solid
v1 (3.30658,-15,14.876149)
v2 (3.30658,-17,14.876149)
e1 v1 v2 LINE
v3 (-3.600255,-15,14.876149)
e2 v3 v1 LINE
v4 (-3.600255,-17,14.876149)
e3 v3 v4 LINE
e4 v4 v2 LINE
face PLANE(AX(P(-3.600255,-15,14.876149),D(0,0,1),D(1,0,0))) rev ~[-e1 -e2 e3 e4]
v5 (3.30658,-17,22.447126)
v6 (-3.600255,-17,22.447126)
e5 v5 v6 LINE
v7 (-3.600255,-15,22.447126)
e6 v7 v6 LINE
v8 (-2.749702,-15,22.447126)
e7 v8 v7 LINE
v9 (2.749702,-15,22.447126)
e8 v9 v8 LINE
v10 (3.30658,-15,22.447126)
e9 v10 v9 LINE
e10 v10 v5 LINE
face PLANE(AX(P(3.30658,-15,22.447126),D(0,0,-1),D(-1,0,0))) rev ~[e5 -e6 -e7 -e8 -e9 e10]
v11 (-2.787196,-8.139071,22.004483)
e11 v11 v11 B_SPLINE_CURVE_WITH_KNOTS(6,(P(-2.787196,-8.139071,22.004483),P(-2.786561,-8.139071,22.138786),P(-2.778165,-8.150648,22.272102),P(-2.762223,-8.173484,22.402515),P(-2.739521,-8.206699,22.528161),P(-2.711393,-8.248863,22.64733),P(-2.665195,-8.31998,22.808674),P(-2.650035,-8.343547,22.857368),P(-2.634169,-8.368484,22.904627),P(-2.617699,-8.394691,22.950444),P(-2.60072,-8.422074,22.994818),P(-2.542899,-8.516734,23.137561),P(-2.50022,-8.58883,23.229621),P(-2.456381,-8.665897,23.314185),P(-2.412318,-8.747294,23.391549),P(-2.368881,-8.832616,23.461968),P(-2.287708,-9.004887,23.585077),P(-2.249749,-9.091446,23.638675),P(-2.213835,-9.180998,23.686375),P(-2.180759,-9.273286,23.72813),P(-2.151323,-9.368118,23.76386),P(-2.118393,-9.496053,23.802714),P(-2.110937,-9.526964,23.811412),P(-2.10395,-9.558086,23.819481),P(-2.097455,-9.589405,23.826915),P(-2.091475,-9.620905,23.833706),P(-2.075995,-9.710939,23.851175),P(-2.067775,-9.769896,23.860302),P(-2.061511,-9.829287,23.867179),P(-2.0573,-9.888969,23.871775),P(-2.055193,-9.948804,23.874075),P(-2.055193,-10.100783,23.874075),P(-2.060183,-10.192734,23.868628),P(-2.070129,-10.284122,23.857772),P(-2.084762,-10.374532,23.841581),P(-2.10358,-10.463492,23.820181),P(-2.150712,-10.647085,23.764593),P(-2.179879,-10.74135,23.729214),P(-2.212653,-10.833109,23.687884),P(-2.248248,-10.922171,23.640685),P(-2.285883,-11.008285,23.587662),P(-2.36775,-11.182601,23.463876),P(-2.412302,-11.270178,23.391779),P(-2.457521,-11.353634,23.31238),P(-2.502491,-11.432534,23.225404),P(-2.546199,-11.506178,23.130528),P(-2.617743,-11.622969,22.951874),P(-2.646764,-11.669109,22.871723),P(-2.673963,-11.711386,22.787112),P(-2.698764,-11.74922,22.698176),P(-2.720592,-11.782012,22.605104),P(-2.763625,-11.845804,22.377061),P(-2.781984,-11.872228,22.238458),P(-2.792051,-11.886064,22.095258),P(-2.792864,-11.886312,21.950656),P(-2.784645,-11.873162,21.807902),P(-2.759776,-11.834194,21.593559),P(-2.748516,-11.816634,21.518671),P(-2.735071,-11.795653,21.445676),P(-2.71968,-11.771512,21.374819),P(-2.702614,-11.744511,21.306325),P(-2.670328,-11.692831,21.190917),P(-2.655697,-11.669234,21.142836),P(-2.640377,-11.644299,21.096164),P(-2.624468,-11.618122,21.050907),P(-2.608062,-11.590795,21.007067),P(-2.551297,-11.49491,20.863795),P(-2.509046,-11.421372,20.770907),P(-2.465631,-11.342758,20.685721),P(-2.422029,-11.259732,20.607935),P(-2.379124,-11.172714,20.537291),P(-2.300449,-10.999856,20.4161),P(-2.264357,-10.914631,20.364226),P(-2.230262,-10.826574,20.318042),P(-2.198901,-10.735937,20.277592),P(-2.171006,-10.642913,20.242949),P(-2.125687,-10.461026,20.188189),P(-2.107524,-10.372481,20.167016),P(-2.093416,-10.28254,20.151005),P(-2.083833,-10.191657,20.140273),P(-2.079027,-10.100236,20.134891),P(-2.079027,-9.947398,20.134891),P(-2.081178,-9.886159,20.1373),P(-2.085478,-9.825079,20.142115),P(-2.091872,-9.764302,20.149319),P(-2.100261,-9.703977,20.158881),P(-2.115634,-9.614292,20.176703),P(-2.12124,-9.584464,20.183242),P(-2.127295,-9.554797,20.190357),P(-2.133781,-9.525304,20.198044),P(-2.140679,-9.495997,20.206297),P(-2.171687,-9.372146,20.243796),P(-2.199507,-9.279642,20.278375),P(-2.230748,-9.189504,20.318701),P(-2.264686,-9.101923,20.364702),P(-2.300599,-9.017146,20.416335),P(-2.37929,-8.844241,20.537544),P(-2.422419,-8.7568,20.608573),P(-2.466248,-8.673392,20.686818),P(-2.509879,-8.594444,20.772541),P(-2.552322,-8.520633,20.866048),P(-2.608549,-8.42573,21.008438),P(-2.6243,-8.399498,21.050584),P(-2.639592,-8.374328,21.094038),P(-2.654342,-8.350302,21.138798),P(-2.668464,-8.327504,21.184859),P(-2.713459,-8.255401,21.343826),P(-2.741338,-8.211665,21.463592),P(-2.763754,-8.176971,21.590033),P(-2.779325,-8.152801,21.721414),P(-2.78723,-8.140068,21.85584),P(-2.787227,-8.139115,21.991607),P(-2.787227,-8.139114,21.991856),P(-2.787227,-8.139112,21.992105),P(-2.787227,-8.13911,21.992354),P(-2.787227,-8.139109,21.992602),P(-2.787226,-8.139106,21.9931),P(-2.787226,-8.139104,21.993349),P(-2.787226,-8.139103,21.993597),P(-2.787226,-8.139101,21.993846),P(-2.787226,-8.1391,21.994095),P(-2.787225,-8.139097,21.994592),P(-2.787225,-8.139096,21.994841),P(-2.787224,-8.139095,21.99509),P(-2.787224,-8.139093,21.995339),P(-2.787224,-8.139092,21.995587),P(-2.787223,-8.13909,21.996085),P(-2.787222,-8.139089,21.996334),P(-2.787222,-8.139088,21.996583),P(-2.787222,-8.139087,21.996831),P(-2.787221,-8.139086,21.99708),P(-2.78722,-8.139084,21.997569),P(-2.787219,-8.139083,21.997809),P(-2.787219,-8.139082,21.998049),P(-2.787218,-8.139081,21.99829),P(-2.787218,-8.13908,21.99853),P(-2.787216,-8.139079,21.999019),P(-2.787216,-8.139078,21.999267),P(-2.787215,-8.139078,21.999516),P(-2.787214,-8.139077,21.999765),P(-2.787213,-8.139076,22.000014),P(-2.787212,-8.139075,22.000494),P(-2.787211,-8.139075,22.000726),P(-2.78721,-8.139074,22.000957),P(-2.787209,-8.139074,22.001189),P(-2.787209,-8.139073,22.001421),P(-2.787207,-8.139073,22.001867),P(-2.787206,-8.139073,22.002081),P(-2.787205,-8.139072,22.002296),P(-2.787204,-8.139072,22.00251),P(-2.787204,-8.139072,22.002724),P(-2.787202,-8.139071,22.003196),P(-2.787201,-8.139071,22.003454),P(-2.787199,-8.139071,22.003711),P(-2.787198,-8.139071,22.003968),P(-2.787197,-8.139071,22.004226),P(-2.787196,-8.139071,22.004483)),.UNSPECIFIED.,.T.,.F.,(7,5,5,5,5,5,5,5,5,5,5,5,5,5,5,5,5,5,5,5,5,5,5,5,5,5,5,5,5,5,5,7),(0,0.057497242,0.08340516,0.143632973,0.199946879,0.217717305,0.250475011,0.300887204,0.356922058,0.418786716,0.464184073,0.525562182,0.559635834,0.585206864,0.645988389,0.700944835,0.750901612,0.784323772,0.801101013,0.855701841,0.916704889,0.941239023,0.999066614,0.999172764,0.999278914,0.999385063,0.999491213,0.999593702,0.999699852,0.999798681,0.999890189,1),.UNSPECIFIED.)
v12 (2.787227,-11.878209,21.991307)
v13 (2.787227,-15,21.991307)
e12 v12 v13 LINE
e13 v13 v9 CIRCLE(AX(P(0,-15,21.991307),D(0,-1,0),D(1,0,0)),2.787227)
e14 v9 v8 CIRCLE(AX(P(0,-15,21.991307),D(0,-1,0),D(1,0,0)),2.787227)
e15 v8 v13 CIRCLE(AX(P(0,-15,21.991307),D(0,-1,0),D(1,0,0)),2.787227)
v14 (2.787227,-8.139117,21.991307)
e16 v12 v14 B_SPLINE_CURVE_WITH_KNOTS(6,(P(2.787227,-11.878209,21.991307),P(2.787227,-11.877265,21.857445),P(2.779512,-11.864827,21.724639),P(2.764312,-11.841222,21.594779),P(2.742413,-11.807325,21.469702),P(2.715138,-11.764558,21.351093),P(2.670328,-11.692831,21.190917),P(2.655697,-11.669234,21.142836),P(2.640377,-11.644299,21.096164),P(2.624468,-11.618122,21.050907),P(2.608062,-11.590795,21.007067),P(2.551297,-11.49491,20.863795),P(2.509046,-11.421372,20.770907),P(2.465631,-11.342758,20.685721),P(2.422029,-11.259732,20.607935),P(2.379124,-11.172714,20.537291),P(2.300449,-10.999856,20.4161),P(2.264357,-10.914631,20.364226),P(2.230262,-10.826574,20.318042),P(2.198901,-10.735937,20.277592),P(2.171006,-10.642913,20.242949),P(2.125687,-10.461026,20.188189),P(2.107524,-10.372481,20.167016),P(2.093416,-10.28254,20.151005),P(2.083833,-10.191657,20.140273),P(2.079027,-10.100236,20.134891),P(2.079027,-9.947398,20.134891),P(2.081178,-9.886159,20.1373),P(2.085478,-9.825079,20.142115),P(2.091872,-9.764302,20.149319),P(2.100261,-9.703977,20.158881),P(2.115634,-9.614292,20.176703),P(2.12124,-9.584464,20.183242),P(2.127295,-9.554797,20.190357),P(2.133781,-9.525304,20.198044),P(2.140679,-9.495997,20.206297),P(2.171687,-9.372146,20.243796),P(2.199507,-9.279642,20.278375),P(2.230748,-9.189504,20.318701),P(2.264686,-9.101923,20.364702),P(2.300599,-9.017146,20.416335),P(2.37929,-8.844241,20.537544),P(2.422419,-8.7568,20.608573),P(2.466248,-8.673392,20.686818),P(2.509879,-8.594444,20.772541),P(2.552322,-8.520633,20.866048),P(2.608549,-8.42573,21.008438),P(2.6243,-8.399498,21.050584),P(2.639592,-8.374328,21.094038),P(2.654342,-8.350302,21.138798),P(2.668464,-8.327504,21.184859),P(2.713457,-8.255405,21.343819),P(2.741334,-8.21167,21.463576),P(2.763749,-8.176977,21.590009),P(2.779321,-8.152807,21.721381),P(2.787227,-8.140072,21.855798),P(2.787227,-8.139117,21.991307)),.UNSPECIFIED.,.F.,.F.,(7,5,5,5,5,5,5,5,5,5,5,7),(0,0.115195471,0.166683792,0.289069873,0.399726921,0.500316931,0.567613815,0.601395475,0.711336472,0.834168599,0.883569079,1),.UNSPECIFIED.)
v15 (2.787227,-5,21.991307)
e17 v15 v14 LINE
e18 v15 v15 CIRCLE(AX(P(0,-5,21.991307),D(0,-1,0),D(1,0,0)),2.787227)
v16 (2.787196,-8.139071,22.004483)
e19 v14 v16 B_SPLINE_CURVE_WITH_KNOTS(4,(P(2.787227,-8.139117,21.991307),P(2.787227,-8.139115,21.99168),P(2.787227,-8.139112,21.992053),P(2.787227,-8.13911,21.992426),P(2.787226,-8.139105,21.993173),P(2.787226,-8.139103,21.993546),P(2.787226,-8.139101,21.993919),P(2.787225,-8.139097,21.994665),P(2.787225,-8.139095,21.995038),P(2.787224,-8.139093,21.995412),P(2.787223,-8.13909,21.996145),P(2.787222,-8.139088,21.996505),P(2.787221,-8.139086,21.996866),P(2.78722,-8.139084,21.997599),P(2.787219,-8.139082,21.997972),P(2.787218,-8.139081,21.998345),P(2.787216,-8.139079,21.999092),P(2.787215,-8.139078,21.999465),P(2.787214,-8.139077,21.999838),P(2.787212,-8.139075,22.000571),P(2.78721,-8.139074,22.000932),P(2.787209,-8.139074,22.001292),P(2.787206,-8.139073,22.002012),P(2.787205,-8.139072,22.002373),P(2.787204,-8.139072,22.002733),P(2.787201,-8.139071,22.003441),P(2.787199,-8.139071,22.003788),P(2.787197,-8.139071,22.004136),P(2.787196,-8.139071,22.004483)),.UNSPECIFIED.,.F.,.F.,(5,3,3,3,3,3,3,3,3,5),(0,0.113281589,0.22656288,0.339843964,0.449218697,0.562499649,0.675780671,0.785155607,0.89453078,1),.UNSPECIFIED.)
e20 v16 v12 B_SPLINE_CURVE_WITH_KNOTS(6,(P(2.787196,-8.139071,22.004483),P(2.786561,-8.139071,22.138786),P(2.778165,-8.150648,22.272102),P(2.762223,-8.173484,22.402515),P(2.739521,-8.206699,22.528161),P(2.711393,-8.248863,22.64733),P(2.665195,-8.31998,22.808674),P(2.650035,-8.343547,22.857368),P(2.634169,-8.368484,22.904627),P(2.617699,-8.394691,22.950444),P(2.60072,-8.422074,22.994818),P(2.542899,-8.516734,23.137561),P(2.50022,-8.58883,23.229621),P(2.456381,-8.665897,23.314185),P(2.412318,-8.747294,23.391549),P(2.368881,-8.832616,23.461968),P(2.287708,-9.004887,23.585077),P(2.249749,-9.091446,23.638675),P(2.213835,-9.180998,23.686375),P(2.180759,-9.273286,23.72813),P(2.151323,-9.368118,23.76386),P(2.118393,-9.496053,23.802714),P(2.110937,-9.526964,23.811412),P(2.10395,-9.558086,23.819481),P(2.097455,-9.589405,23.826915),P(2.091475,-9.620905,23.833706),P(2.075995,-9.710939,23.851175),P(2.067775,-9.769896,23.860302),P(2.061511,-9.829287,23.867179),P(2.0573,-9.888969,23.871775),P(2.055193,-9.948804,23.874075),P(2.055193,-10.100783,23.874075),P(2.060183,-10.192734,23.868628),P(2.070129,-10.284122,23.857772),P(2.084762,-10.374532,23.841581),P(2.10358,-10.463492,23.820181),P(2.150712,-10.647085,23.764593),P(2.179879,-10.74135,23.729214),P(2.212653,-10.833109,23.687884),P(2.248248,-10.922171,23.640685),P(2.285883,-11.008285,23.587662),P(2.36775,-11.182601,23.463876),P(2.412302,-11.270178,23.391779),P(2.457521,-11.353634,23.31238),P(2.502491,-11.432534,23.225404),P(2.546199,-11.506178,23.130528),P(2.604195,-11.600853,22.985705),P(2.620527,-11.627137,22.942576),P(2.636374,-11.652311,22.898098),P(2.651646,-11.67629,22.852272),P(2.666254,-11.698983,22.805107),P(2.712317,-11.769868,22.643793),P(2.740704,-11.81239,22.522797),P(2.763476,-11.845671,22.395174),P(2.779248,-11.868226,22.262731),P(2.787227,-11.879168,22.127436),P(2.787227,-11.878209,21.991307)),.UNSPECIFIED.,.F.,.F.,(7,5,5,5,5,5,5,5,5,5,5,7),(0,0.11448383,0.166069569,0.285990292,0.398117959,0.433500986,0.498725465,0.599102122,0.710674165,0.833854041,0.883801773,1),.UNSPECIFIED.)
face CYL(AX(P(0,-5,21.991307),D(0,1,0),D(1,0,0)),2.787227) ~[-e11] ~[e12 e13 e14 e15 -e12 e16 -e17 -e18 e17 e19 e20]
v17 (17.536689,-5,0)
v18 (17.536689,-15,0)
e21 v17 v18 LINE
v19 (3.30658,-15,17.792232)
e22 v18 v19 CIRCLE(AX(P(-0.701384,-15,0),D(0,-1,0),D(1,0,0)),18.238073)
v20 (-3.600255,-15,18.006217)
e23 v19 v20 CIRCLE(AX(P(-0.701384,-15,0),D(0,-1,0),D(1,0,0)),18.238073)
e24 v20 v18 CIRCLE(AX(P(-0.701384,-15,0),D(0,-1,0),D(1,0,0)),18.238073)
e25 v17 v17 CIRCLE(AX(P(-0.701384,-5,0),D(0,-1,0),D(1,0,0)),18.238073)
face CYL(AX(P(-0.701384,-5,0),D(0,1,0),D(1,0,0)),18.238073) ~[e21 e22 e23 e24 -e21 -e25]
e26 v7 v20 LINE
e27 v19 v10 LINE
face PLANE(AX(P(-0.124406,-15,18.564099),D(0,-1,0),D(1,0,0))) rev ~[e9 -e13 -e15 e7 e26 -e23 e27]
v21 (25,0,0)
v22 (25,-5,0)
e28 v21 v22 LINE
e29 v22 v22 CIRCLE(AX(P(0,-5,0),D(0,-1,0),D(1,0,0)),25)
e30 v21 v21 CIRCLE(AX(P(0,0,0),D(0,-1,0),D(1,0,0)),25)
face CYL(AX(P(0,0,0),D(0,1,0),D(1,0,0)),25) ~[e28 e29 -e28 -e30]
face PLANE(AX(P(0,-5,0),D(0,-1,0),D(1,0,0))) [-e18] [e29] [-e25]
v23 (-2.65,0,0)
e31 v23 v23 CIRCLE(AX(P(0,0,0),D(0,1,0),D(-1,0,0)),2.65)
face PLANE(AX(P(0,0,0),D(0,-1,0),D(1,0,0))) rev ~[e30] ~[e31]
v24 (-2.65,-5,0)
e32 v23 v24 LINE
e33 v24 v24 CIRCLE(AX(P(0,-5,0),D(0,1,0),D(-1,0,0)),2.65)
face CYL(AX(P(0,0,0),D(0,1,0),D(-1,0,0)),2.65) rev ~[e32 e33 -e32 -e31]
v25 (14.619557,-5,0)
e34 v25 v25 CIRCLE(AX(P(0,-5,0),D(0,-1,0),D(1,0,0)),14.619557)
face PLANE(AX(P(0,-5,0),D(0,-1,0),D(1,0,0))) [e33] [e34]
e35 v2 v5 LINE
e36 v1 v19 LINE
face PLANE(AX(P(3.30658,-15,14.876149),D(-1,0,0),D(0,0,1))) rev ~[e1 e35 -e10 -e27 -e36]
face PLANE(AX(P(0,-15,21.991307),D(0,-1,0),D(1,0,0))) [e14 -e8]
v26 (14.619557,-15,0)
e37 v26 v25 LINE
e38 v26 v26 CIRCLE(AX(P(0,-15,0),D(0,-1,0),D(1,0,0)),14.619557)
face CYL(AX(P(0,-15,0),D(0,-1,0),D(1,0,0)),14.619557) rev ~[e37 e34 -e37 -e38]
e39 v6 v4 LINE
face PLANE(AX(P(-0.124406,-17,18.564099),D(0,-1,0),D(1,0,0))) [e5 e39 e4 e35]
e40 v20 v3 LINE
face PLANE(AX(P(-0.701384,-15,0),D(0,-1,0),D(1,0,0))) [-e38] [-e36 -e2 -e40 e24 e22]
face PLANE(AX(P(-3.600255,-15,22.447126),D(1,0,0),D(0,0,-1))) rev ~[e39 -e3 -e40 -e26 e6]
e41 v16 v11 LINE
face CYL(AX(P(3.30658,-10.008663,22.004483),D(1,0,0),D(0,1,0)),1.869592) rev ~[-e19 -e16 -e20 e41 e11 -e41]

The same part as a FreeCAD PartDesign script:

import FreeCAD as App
import Part
import Sketcher
from FreeCAD import Vector

doc = App.newDocument("Part")
body = doc.addObject("PartDesign::Body", "Body")

sketch1 = doc.addObject("Sketcher::SketchObject", "Sketch")
body.addObject(sketch1)
sketch1.AttachmentSupport = (doc.XZ_Plane, [""])
sketch1.MapMode = "FlatFace"
sketch1.addGeometry(Part.Circle(Vector(0, 0, 0), Vector(0, 0, 1), 25), False)
sketch1.addConstraint([
    Sketcher.Constraint("Coincident", 0, 3, -1, 1),
    Sketcher.Constraint("Diameter", 0, 50.0),
])
pad1 = doc.addObject("PartDesign::Pad", "Pad")
body.addObject(pad1)
pad1.Profile = sketch1
pad1.Length = 5

sketch2 = doc.addObject("Sketcher::SketchObject", "Sketch001")
body.addObject(sketch2)
sketch2.AttachmentSupport = (doc.XZ_Plane, [""])
sketch2.MapMode = "FlatFace"
sketch2.addGeometry(Part.Circle(Vector(0, 0, 0), Vector(0, 0, 1), 2.6), False)
sketch2.addConstraint([
    Sketcher.Constraint("Coincident", 0, 3, -1, 1),
    Sketcher.Constraint("Diameter", 0, 5.3),
])
pocket1 = doc.addObject("PartDesign::Pocket", "Pocket")
body.addObject(pocket1)
pocket1.Profile = sketch2
pocket1.Length = 5
pocket1.Reversed = True

sketch3 = doc.addObject("Sketcher::SketchObject", "Sketch002")
body.addObject(sketch3)
sketch3.AttachmentSupport = (doc.XZ_Plane, [""])
sketch3.MapMode = "FlatFace"
sketch3.AttachmentOffset = App.Placement(Vector(0, 0, 5), App.Rotation())
sketch3.addGeometry(Part.Circle(Vector(-1, 0, 0), Vector(0, 0, 1), 18), False)
sketch3.addConstraint([
    Sketcher.Constraint("PointOnObject", 0, 3, -1),
    Sketcher.Constraint("Diameter", 0, 36.476146),
    Sketcher.Constraint("DistanceX", 0, 3, -1, 1, 0.701384),
])
pad2 = doc.addObject("PartDesign::Pad", "Pad001")
body.addObject(pad2)
pad2.Profile = sketch3
pad2.Length = 10

sketch4 = doc.addObject("Sketcher::SketchObject", "Sketch003")
body.addObject(sketch4)
sketch4.AttachmentSupport = (doc.XZ_Plane, [""])
sketch4.MapMode = "FlatFace"
sketch4.AttachmentOffset = App.Placement(Vector(0, 0, 15), App.Rotation())
sketch4.addGeometry(Part.Circle(Vector(0, 0, 0), Vector(0, 0, 1), 15), False)
sketch4.addConstraint([
    Sketcher.Constraint("Coincident", 0, 3, -1, 1),
    Sketcher.Constraint("Diameter", 0, 29.239114),
])
pocket2 = doc.addObject("PartDesign::Pocket", "Pocket001")
body.addObject(pocket2)
pocket2.Profile = sketch4
pocket2.Length = 10

sketch5 = doc.addObject("Sketcher::SketchObject", "Sketch004")
body.addObject(sketch5)
sketch5.AttachmentSupport = (doc.XZ_Plane, [""])
sketch5.MapMode = "FlatFace"
sketch5.AttachmentOffset = App.Placement(Vector(0, 0, 5), App.Rotation())
sketch5.addGeometry(Part.Circle(Vector(0, 22, 0), Vector(0, 0, 1), 2.8), False)
sketch5.addConstraint([
    Sketcher.Constraint("PointOnObject", 0, 3, -2),
    Sketcher.Constraint("Diameter", 0, 5.574454),
    Sketcher.Constraint("DistanceY", -1, 1, 0, 3, 21.991307),
])
pad3 = doc.addObject("PartDesign::Pad", "Pad002")
body.addObject(pad3)
pad3.Profile = sketch5
pad3.Length = 10

sketch6 = doc.addObject("Sketcher::SketchObject", "Sketch005")
body.addObject(sketch6)
sketch6.AttachmentSupport = (doc.XZ_Plane, [""])
sketch6.MapMode = "FlatFace"
sketch6.AttachmentOffset = App.Placement(Vector(0, 0, 15), App.Rotation())
sketch6.addGeometry([
    Part.LineSegment(Vector(-4, 22, 0), Vector(-4, 15, 0)),
    Part.LineSegment(Vector(-4, 15, 0), Vector(3, 15, 0)),
    Part.LineSegment(Vector(3, 15, 0), Vector(3, 22, 0)),
    Part.LineSegment(Vector(3, 22, 0), Vector(-4, 22, 0)),
], False)
sketch6.addConstraint([
    Sketcher.Constraint("Coincident", 0, 2, 1, 1),
    Sketcher.Constraint("Coincident", 1, 2, 2, 1),
    Sketcher.Constraint("Coincident", 2, 2, 3, 1),
    Sketcher.Constraint("Coincident", 3, 2, 0, 1),
    Sketcher.Constraint("Vertical", 0),
    Sketcher.Constraint("Horizontal", 1),
    Sketcher.Constraint("Vertical", 2),
    Sketcher.Constraint("Horizontal", 3),
    Sketcher.Constraint("DistanceX", 1, 1, 1, 2, 6.906835),
    Sketcher.Constraint("DistanceY", 0, 2, 0, 1, 7.570977),
    Sketcher.Constraint("DistanceY", -1, 1, 0, 2, 14.876149),
    Sketcher.Constraint("DistanceX", -1, 1, 1, 2, 3.30658),
])
pad4 = doc.addObject("PartDesign::Pad", "Pad003")
body.addObject(pad4)
pad4.Profile = sketch6
pad4.Length = 2

sketch7 = doc.addObject("Sketcher::SketchObject", "Sketch006")
body.addObject(sketch7)
sketch7.AttachmentSupport = (doc.YZ_Plane, [""])
sketch7.MapMode = "FlatFace"
sketch7.AttachmentOffset = App.Placement(Vector(0, 0, 3.30658), App.Rotation())
sketch7.addGeometry(Part.Circle(Vector(-10, 22, 0), Vector(0, 0, 1), 1.9), False)
sketch7.addConstraint([
    Sketcher.Constraint("Diameter", 0, 3.739184),
    Sketcher.Constraint("DistanceX", 0, 3, -1, 1, 10.008663),
    Sketcher.Constraint("DistanceY", -1, 1, 0, 3, 22.004483),
])
pocket3 = doc.addObject("PartDesign::Pocket", "Pocket002")
body.addObject(pocket3)
pocket3.Profile = sketch7
pocket3.Length = 25.4

doc.recompute()
